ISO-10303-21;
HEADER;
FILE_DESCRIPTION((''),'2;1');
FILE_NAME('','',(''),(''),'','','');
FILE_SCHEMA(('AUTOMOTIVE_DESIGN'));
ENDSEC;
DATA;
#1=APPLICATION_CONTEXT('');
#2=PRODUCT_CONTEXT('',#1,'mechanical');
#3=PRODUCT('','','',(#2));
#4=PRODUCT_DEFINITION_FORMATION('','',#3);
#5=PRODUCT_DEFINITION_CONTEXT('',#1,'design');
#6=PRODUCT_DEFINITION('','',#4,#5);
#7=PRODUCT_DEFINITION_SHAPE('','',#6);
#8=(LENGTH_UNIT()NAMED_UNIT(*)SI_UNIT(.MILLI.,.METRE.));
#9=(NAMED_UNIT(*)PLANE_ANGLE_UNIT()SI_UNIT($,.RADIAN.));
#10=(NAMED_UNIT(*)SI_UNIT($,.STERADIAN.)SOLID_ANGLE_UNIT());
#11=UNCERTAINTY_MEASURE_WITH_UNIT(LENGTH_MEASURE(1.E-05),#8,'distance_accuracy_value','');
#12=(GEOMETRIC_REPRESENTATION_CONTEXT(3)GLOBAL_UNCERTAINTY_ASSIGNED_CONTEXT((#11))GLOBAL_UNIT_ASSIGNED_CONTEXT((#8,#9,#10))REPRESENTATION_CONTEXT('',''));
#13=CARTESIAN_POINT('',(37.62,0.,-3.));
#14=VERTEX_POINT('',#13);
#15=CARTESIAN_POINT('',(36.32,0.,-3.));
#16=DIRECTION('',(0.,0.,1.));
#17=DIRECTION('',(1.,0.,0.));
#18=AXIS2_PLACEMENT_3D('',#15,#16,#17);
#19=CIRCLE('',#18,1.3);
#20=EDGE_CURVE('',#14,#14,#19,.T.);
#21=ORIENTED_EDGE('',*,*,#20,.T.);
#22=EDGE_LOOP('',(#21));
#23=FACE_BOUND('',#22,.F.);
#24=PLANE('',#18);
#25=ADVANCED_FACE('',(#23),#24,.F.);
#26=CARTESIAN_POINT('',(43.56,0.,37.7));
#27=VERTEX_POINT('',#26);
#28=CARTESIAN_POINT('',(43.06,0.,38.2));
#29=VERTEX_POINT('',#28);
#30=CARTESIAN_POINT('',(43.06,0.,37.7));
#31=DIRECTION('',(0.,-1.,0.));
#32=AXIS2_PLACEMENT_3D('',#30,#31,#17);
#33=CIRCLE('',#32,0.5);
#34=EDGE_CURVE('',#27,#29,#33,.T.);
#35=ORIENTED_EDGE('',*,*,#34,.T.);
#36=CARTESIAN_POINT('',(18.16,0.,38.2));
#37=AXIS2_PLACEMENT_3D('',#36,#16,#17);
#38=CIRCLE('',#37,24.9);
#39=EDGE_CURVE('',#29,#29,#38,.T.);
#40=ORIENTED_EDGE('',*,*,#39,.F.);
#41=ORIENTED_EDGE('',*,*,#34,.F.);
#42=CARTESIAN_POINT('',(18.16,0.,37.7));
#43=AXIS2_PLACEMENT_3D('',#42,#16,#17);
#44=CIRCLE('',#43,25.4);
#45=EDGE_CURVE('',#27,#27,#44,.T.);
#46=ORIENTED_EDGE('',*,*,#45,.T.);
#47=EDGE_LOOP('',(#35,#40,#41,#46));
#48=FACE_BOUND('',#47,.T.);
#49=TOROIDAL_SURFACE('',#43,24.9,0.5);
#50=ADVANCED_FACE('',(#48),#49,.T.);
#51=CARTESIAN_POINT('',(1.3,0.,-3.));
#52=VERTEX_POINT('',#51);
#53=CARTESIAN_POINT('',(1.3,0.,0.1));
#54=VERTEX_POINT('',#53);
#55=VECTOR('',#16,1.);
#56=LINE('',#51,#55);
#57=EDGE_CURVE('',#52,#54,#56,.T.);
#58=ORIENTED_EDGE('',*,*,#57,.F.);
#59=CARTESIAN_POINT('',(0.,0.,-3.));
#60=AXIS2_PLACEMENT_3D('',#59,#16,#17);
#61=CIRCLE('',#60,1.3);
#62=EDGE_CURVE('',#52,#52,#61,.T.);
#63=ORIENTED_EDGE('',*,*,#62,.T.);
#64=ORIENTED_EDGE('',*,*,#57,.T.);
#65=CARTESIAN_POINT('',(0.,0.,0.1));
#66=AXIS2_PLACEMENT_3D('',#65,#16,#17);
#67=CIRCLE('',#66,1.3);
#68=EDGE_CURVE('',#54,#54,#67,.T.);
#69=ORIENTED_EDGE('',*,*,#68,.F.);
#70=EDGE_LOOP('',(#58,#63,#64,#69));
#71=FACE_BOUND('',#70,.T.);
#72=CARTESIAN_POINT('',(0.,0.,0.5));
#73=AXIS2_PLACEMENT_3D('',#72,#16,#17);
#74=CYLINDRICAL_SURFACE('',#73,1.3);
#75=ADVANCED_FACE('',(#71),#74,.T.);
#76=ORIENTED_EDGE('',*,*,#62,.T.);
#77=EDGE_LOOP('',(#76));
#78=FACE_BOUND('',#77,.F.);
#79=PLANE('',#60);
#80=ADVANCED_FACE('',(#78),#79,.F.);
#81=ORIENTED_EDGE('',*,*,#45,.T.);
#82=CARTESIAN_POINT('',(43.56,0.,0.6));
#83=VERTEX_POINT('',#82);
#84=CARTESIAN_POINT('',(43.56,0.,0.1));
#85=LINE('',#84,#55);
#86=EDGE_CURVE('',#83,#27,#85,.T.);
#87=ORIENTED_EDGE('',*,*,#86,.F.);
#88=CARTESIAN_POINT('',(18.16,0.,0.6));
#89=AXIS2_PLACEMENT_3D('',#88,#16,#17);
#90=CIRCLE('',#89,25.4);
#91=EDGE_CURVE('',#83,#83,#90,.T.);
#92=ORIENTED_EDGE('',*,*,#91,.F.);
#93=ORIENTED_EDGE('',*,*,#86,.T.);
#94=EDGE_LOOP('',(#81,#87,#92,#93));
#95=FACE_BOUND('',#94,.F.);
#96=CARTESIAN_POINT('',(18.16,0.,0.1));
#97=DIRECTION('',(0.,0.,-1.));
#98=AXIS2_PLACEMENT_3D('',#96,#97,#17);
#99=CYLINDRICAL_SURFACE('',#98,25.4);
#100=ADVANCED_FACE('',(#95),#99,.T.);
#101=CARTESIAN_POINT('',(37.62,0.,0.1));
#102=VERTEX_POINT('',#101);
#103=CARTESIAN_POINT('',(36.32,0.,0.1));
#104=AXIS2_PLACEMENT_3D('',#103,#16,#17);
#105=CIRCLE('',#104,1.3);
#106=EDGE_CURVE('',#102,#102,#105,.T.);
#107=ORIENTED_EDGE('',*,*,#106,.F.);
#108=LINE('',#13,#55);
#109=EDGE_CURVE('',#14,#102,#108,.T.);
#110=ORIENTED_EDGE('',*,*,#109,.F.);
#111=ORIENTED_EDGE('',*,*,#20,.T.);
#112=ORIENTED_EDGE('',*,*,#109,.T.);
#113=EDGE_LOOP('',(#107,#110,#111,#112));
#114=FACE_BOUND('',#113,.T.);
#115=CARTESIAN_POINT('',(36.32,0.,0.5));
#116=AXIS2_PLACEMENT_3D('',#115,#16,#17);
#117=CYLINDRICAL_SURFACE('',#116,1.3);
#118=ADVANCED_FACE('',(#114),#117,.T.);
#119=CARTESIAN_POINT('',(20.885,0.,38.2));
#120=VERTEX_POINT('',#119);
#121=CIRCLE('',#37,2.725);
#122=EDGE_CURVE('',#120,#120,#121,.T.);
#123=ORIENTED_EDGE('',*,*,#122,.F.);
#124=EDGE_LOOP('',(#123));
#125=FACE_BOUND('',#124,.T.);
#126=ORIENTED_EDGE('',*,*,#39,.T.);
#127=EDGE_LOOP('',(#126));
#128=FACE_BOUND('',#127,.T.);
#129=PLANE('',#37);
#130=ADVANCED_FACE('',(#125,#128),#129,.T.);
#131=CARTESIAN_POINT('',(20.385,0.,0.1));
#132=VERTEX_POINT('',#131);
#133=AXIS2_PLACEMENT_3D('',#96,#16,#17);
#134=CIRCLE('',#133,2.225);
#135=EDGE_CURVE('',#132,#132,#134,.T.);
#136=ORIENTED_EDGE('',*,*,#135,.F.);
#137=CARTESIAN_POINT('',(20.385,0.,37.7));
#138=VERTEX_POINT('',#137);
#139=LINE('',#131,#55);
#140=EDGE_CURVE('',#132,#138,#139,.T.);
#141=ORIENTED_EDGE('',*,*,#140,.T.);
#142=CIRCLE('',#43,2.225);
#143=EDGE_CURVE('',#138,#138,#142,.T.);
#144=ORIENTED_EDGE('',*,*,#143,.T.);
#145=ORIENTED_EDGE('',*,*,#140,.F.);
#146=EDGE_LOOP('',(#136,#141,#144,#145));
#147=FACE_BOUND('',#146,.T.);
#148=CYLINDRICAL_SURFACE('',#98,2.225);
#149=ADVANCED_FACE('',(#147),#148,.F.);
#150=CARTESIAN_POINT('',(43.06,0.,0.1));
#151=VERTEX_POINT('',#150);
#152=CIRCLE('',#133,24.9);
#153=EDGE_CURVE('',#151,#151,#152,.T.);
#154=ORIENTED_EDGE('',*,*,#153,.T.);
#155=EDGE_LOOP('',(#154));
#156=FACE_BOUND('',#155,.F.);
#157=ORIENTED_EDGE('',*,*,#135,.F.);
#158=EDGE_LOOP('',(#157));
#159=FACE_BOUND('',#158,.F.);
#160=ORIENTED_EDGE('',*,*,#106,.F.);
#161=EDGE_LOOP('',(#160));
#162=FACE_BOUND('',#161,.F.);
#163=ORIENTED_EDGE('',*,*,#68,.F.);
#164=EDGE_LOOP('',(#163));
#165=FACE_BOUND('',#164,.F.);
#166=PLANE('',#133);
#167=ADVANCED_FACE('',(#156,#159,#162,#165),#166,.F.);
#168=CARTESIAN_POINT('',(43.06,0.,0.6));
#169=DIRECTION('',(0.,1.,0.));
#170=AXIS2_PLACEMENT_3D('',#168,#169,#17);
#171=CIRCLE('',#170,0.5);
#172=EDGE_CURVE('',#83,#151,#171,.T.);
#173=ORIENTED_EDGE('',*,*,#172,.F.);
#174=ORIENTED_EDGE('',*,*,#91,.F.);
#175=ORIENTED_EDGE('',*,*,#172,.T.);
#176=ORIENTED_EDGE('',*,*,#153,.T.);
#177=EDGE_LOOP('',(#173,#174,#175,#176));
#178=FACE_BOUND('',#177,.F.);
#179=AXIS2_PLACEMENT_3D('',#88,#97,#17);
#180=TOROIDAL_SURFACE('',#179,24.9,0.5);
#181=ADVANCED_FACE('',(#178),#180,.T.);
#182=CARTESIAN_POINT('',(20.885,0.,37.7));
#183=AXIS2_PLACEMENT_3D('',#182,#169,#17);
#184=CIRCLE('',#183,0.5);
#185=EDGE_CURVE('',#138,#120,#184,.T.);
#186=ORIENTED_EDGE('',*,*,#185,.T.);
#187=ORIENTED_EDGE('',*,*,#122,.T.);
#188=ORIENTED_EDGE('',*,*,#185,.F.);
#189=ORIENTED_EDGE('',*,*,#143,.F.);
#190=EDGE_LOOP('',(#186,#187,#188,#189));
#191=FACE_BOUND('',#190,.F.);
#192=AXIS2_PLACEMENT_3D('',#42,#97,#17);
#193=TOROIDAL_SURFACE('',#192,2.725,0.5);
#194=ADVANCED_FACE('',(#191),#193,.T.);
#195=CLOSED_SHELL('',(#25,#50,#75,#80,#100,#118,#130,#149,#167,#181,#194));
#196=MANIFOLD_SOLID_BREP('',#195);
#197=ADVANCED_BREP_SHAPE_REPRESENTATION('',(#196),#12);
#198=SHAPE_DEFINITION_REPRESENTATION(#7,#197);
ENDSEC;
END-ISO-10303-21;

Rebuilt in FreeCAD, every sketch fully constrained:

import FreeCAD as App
import Part
import Sketcher
Q = App.Units.Quantity


def edges_at(feature, points):
    """Names of the edges that pass closest to the given points."""
    edges = feature.Shape.Edges
    near = lambda p: min(range(len(edges)), key=lambda i: edges[i].distToShape(Part.Vertex(*p))[0])
    return sorted({f"Edge{near(p) + 1}" for p in points})

doc = App.newDocument("Part")
body = doc.addObject("PartDesign::Body", "Body")
body.AllowCompound = True

# Sketch on XY plane
sketch1 = doc.addObject("Sketcher::SketchObject", "Sketch")
body.addObject(sketch1)
sketch1.AttachmentSupport = (doc.XY_Plane, [""])
sketch1.MapMode = "FlatFace"
sketch1.AttachmentOffset = App.Placement(App.Vector(0, 0, 0.5), App.Rotation())
sketch1.addGeometry(Part.Circle(App.Vector(0, 0, 0), App.Vector(0, 0, 1), 1.3), False)
sketch1.addGeometry(Part.Circle(App.Vector(36.3, 0, 0), App.Vector(0, 0, 1), 1.3), False)
sketch1.addConstraint(Sketcher.Constraint("Coincident", 0, 3, -1, 1))
sketch1.addConstraint(Sketcher.Constraint("Equal", 0, 1))
sketch1.addConstraint(Sketcher.Constraint("PointOnObject", 1, 3, -1))
sketch1.addConstraint(Sketcher.Constraint("Diameter", 0, Q("2.6 mm")))
sketch1.addConstraint(Sketcher.Constraint("DistanceX", -1, 1, 1, 3, Q("36.32 mm")))
pad1 = doc.addObject("PartDesign::Pad", "Pad")
body.addObject(pad1)
pad1.Profile = sketch1
pad1.Type = "TwoLengths"
pad1.Length = Q("0.75 in")
pad1.Length2 = 3.5
body2 = doc.addObject("PartDesign::Body", "Body001")

# Sketch on XY plane
sketch2 = doc.addObject("Sketcher::SketchObject", "Sketch001")
body2.addObject(sketch2)
sketch2.AttachmentSupport = (doc.getObject("XY_Plane001"), [""])
sketch2.MapMode = "FlatFace"
sketch2.AttachmentOffset = App.Placement(App.Vector(0, 0, 0.1), App.Rotation())
sketch2.addGeometry(Part.Circle(App.Vector(18.2, 0, 0), App.Vector(0, 0, 1), 25.4), False)
sketch2.addGeometry(Part.Circle(App.Vector(18.2, 0, 0), App.Vector(0, 0, 1), 2.2), False)
sketch2.addConstraint(Sketcher.Constraint("Coincident", 1, 3, 0, 3))
sketch2.addConstraint(Sketcher.Constraint("PointOnObject", 0, 3, -1))
sketch2.addConstraint(Sketcher.Constraint("Diameter", 0, Q("2 in")))
sketch2.addConstraint(Sketcher.Constraint("Diameter", 1, Q("4.45 mm")))
sketch2.addConstraint(Sketcher.Constraint("DistanceX", -1, 1, 0, 3, Q("18.16 mm")))
pad2 = doc.addObject("PartDesign::Pad", "Pad001")
body2.addObject(pad2)
pad2.Profile = sketch2
pad2.Length = Q("1.5 in")
doc.recompute()

fillet = doc.addObject("PartDesign::Fillet", "Fillet")
body2.addObject(fillet)
fillet.Base = (pad2, edges_at(pad2, [(15.935, 0, 38.2), (-7.24, 0, 38.2), (-7.24, 0, 0.1)]))
fillet.Radius = 0.5
doc.recompute()

boolean = doc.addObject("PartDesign::Boolean", "Boolean")
body2.addObject(boolean)
boolean.Type = "Fuse"
boolean.addObjects([body])

doc.recompute()
